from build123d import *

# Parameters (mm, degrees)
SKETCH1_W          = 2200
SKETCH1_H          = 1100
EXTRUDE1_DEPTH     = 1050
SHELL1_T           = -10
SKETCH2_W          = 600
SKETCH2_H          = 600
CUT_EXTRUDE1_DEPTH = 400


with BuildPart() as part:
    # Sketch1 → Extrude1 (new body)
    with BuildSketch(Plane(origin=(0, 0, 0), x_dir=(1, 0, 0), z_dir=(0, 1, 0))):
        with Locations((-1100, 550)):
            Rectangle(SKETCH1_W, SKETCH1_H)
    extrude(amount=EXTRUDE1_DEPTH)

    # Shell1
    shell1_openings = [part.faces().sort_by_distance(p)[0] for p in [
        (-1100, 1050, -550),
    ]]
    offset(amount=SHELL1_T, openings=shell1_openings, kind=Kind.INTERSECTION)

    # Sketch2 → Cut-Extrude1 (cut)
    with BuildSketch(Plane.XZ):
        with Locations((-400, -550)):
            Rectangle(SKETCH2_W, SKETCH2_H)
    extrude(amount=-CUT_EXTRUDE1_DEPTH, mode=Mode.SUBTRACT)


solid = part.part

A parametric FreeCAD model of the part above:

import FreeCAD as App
import Part
import Sketcher
from FreeCAD import Vector
Q = App.Units.Quantity


def faces_at(feature, points):
    """Names of the faces that lie closest to the given points."""
    faces = feature.Shape.Faces
    near = lambda p: min(range(len(faces)), key=lambda i: faces[i].distToShape(Part.Vertex(*p))[0])
    return sorted({f"Face{near(p) + 1}" for p in points})


def add_polygon(sketch, points):
    """Adds a closed chain of lines whose ends are joined by coincident constraints."""
    first, n = sketch.GeometryCount, len(points)
    for a, b in zip(points, points[1:] + points[:1]):
        sketch.addGeometry(Part.LineSegment(App.Vector(*a, 0), App.Vector(*b, 0)), False)
    for i in range(n):
        sketch.addConstraint(Sketcher.Constraint("Coincident", first + i, 2, first + (i + 1) % n, 1))

doc = App.newDocument("Part")
params = doc.addObject("Spreadsheet::Sheet", "Params")
for row, (alias, value) in enumerate([
    ("sketch1_width", "2200 mm"),
    ("sketch1_height", "1100 mm"),
    ("pad1_length", "1050 mm"),
    ("thickness_wall", "10 mm"),
    ("sketch2_width", "600 mm"),
    ("pocket1_length", "400 mm"),
], start=1):
    params.set(f"A{row}", alias)
    params.set(f"B{row}", "=" + value)
    params.setAlias(f"B{row}", alias)

body = doc.addObject("PartDesign::Body", "Body")

# Sketch on XZ plane
sketch1 = doc.addObject("Sketcher::SketchObject", "Sketch")
body.addObject(sketch1)
sketch1.AttachmentSupport = (doc.XZ_Plane, [""])
sketch1.MapMode = "FlatFace"
add_polygon(sketch1, [(-2200, -1100), (-2200, 0), (0, 0), (0, -1100)])  # lines 0-3
sketch1.addConstraint([
    Sketcher.Constraint("Vertical", 0),
    Sketcher.Constraint("Horizontal", 1),
    Sketcher.Constraint("Vertical", 2),
    Sketcher.Constraint("Horizontal", 3),
    Sketcher.Constraint("Coincident", 1, 2, -1, 1),
    Sketcher.Constraint("DistanceX", 1, 1, 1, 2, Q("2200 mm")),
    Sketcher.Constraint("DistanceY", 0, 1, 0, 2, Q("1100 mm")),
])
sketch1.setExpression("Constraints[9]", "Params.sketch1_width")
sketch1.setExpression("Constraints[10]", "Params.sketch1_height")
pad1 = doc.addObject("PartDesign::Pad", "Pad")
body.addObject(pad1)
pad1.Profile = sketch1
pad1.setExpression("Length", "Params.pad1_length")
pad1.Reversed = True
doc.recompute()

thickness = doc.addObject("PartDesign::Thickness", "Thickness")
body.addObject(thickness)
thickness.Base = (pad1, faces_at(pad1, [(-1100, 1050, -550)]))
thickness.setExpression("Value", "Params.thickness_wall")
thickness.Reversed = True
thickness.Join = "Intersection"

# Sketch on XZ plane
sketch2 = doc.addObject("Sketcher::SketchObject", "Sketch001")
body.addObject(sketch2)
sketch2.AttachmentSupport = (doc.XZ_Plane, [""])
sketch2.MapMode = "FlatFace"
add_polygon(sketch2, [(-700, -250), (-700, -850), (-100, -850), (-100, -250)])  # lines 0-3
sketch2.addConstraint([
    Sketcher.Constraint("Vertical", 0),
    Sketcher.Constraint("Horizontal", 1),
    Sketcher.Constraint("Vertical", 2),
    Sketcher.Constraint("Horizontal", 3),
    Sketcher.Constraint("Equal", 3, 0),
    Sketcher.Constraint("DistanceX", 1, 1, 1, 2, Q("600 mm")),
    Sketcher.Constraint("DistanceX", 0, 2, -1, 1, Q("700 mm")),
    Sketcher.Constraint("DistanceY", 0, 2, -1, 1, Q("850 mm")),
])
sketch2.setExpression("Constraints[9]", "Params.sketch2_width")
pocket1 = doc.addObject("PartDesign::Pocket", "Pocket")
body.addObject(pocket1)
pocket1.Profile = sketch2
pocket1.setExpression("Length", "Params.pocket1_length")

doc.recompute()
